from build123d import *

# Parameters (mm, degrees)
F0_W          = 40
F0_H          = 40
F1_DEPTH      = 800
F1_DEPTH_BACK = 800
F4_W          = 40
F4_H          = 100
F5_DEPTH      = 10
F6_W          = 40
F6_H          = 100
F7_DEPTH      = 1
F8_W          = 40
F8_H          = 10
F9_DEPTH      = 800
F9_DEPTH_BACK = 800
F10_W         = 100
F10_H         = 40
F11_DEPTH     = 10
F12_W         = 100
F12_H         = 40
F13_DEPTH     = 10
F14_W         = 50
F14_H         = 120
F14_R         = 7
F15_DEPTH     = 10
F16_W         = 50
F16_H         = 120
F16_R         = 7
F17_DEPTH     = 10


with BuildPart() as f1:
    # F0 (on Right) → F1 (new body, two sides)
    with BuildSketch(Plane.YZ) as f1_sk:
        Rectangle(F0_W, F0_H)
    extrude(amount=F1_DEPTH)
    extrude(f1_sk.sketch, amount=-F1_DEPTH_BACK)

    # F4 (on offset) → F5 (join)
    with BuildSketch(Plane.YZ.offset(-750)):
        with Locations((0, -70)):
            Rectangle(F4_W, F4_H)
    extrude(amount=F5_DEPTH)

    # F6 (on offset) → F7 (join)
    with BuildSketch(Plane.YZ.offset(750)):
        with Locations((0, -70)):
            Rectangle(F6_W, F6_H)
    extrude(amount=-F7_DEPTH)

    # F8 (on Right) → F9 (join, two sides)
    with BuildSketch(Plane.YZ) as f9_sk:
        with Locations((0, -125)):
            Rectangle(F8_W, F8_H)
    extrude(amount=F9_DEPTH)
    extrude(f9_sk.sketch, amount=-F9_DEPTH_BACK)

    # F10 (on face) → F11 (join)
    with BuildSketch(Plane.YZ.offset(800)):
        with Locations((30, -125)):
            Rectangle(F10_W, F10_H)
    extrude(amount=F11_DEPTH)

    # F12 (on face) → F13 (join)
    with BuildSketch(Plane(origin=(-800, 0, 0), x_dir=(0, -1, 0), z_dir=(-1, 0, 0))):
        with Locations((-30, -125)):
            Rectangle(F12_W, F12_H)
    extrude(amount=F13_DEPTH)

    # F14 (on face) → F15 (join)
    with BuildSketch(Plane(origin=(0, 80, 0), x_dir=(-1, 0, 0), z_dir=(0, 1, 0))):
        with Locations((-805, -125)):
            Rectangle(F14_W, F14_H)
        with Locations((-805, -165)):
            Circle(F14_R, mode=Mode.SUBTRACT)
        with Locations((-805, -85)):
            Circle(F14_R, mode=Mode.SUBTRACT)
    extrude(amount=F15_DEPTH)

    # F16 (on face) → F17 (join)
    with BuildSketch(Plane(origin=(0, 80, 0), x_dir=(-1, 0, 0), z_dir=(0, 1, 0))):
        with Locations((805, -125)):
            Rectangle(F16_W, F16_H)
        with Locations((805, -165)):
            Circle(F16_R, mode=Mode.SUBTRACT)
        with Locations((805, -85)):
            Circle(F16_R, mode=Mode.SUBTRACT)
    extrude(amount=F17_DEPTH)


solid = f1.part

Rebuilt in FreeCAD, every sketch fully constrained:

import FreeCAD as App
import Part
import Sketcher

V = App.Vector
Q = App.Units.Quantity

doc = App.newDocument("Part")
body = doc.addObject("PartDesign::Body", "Body")

sketch1 = body.newObject("Sketcher::SketchObject", "Sketch")
sketch1.AttachmentSupport = (doc.getObject("YZ_Plane"), [""])
sketch1.MapMode = "FlatFace"
sketch1.addGeometry([
    Part.LineSegment(V(-20, 20, 0), V(-20, -20, 0)),
    Part.LineSegment(V(-20, -20, 0), V(20, -20, 0)),
    Part.LineSegment(V(20, -20, 0), V(20, 20, 0)),
    Part.LineSegment(V(20, 20, 0), V(-20, 20, 0)),
], False)
sketch1.addConstraint([
    Sketcher.Constraint("Coincident", 0, 2, 1, 1),
    Sketcher.Constraint("Coincident", 1, 2, 2, 1),
    Sketcher.Constraint("Coincident", 2, 2, 3, 1),
    Sketcher.Constraint("Coincident", 3, 2, 0, 1),
    Sketcher.Constraint("Vertical", 0),
    Sketcher.Constraint("Horizontal", 1),
    Sketcher.Constraint("Vertical", 2),
    Sketcher.Constraint("Horizontal", 3),
    Sketcher.Constraint("Symmetric", 0, 2, 2, 2, -1, 1),
    Sketcher.Constraint("Equal", 3, 0),
    Sketcher.Constraint("DistanceX", 1, 1, 1, 2, Q("40 mm")),
])
pad1 = body.newObject("PartDesign::Pad", "Pad")
pad1.Profile = sketch1
pad1.Type = "TwoLengths"
pad1.Length = 800
pad1.Length2 = 800

sketch2 = body.newObject("Sketcher::SketchObject", "Sketch001")
sketch2.AttachmentSupport = (doc.getObject("YZ_Plane"), [""])
sketch2.MapMode = "FlatFace"
sketch2.AttachmentOffset = App.Placement(V(0, 0, -750), App.Rotation())
sketch2.addGeometry([
    Part.LineSegment(V(-20, -20, 0), V(-20, -120, 0)),
    Part.LineSegment(V(-20, -120, 0), V(20, -120, 0)),
    Part.LineSegment(V(20, -120, 0), V(20, -20, 0)),
    Part.LineSegment(V(20, -20, 0), V(-20, -20, 0)),
], False)
sketch2.addConstraint([
    Sketcher.Constraint("Coincident", 0, 2, 1, 1),
    Sketcher.Constraint("Coincident", 1, 2, 2, 1),
    Sketcher.Constraint("Coincident", 2, 2, 3, 1),
    Sketcher.Constraint("Coincident", 3, 2, 0, 1),
    Sketcher.Constraint("Vertical", 0),
    Sketcher.Constraint("Horizontal", 1),
    Sketcher.Constraint("Vertical", 2),
    Sketcher.Constraint("Horizontal", 3),
    Sketcher.Constraint("DistanceX", 1, 1, 1, 2, Q("40 mm")),
    Sketcher.Constraint("DistanceY", 0, 2, 0, 1, Q("100 mm")),
    Sketcher.Constraint("DistanceX", 0, 2, -1, 1, Q("20 mm")),
    Sketcher.Constraint("DistanceY", 0, 2, -1, 1, Q("120 mm")),
])
pad2 = body.newObject("PartDesign::Pad", "Pad001")
pad2.Profile = sketch2
pad2.Length = 10

sketch3 = body.newObject("Sketcher::SketchObject", "Sketch002")
sketch3.AttachmentSupport = (doc.getObject("YZ_Plane"), [""])
sketch3.MapMode = "FlatFace"
sketch3.AttachmentOffset = App.Placement(V(0, 0, 750), App.Rotation())
sketch3.addGeometry([
    Part.LineSegment(V(-20, -20, 0), V(-20, -120, 0)),
    Part.LineSegment(V(-20, -120, 0), V(20, -120, 0)),
    Part.LineSegment(V(20, -120, 0), V(20, -20, 0)),
    Part.LineSegment(V(20, -20, 0), V(-20, -20, 0)),
], False)
sketch3.addConstraint([
    Sketcher.Constraint("Coincident", 0, 2, 1, 1),
    Sketcher.Constraint("Coincident", 1, 2, 2, 1),
    Sketcher.Constraint("Coincident", 2, 2, 3, 1),
    Sketcher.Constraint("Coincident", 3, 2, 0, 1),
    Sketcher.Constraint("Vertical", 0),
    Sketcher.Constraint("Horizontal", 1),
    Sketcher.Constraint("Vertical", 2),
    Sketcher.Constraint("Horizontal", 3),
    Sketcher.Constraint("DistanceX", 1, 1, 1, 2, Q("40 mm")),
    Sketcher.Constraint("DistanceY", 0, 2, 0, 1, Q("100 mm")),
    Sketcher.Constraint("DistanceX", 0, 2, -1, 1, Q("20 mm")),
    Sketcher.Constraint("DistanceY", 0, 2, -1, 1, Q("120 mm")),
])
pad3 = body.newObject("PartDesign::Pad", "Pad002")
pad3.Profile = sketch3
pad3.Length = 1
pad3.Reversed = True

sketch4 = body.newObject("Sketcher::SketchObject", "Sketch003")
sketch4.AttachmentSupport = (doc.getObject("YZ_Plane"), [""])
sketch4.MapMode = "FlatFace"
sketch4.addGeometry([
    Part.LineSegment(V(-20, -120, 0), V(-20, -130, 0)),
    Part.LineSegment(V(-20, -130, 0), V(20, -130, 0)),
    Part.LineSegment(V(20, -130, 0), V(20, -120, 0)),
    Part.LineSegment(V(20, -120, 0), V(-20, -120, 0)),
], False)
sketch4.addConstraint([
    Sketcher.Constraint("Coincident", 0, 2, 1, 1),
    Sketcher.Constraint("Coincident", 1, 2, 2, 1),
    Sketcher.Constraint("Coincident", 2, 2, 3, 1),
    Sketcher.Constraint("Coincident", 3, 2, 0, 1),
    Sketcher.Constraint("Vertical", 0),
    Sketcher.Constraint("Horizontal", 1),
    Sketcher.Constraint("Vertical", 2),
    Sketcher.Constraint("Horizontal", 3),
    Sketcher.Constraint("DistanceX", 1, 1, 1, 2, Q("40 mm")),
    Sketcher.Constraint("DistanceY", 0, 2, 0, 1, Q("10 mm")),
    Sketcher.Constraint("DistanceX", 0, 2, -1, 1, Q("20 mm")),
    Sketcher.Constraint("DistanceY", 0, 2, -1, 1, Q("130 mm")),
])
pad4 = body.newObject("PartDesign::Pad", "Pad003")
pad4.Profile = sketch4
pad4.Type = "TwoLengths"
pad4.Length = 800
pad4.Length2 = 800

sketch5 = body.newObject("Sketcher::SketchObject", "Sketch004")
sketch5.AttachmentSupport = (doc.getObject("YZ_Plane"), [""])
sketch5.MapMode = "FlatFace"
sketch5.AttachmentOffset = App.Placement(V(0, 0, 800), App.Rotation())
sketch5.addGeometry([
    Part.LineSegment(V(-20, -105, 0), V(-20, -145, 0)),
    Part.LineSegment(V(-20, -145, 0), V(80, -145, 0)),
    Part.LineSegment(V(80, -145, 0), V(80, -105, 0)),
    Part.LineSegment(V(80, -105, 0), V(-20, -105, 0)),
], False)
sketch5.addConstraint([
    Sketcher.Constraint("Coincident", 0, 2, 1, 1),
    Sketcher.Constraint("Coincident", 1, 2, 2, 1),
    Sketcher.Constraint("Coincident", 2, 2, 3, 1),
    Sketcher.Constraint("Coincident", 3, 2, 0, 1),
    Sketcher.Constraint("Vertical", 0),
    Sketcher.Constraint("Horizontal", 1),
    Sketcher.Constraint("Vertical", 2),
    Sketcher.Constraint("Horizontal", 3),
    Sketcher.Constraint("DistanceX", 1, 1, 1, 2, Q("100 mm")),
    Sketcher.Constraint("DistanceY", 0, 2, 0, 1, Q("40 mm")),
    Sketcher.Constraint("DistanceX", 0, 2, -1, 1, Q("20 mm")),
    Sketcher.Constraint("DistanceY", 0, 2, -1, 1, Q("145 mm")),
])
pad5 = body.newObject("PartDesign::Pad", "Pad004")
pad5.Profile = sketch5
pad5.Length = 10

sketch6 = body.newObject("Sketcher::SketchObject", "Sketch005")
sketch6.AttachmentSupport = (doc.getObject("YZ_Plane"), [""])
sketch6.MapMode = "FlatFace"
sketch6.AttachmentOffset = App.Placement(V(0, 0, -800), App.Rotation())
sketch6.addGeometry([
    Part.LineSegment(V(80, -105, 0), V(80, -145, 0)),
    Part.LineSegment(V(80, -145, 0), V(-20, -145, 0)),
    Part.LineSegment(V(-20, -145, 0), V(-20, -105, 0)),
    Part.LineSegment(V(-20, -105, 0), V(80, -105, 0)),
], False)
sketch6.addConstraint([
    Sketcher.Constraint("Coincident", 0, 2, 1, 1),
    Sketcher.Constraint("Coincident", 1, 2, 2, 1),
    Sketcher.Constraint("Coincident", 2, 2, 3, 1),
    Sketcher.Constraint("Coincident", 3, 2, 0, 1),
    Sketcher.Constraint("Vertical", 0),
    Sketcher.Constraint("Horizontal", 1),
    Sketcher.Constraint("Vertical", 2),
    Sketcher.Constraint("Horizontal", 3),
    Sketcher.Constraint("DistanceX", 1, 2, 1, 1, Q("100 mm")),
    Sketcher.Constraint("DistanceY", 0, 2, 0, 1, Q("40 mm")),
    Sketcher.Constraint("DistanceX", -1, 1, 0, 2, Q("80 mm")),
    Sketcher.Constraint("DistanceY", 0, 2, -1, 1, Q("145 mm")),
])
pad6 = body.newObject("PartDesign::Pad", "Pad005")
pad6.Profile = sketch6
pad6.Length = 10
pad6.Reversed = True

sketch7 = body.newObject("Sketcher::SketchObject", "Sketch006")
sketch7.AttachmentSupport = (doc.getObject("XZ_Plane"), [""])
sketch7.MapMode = "FlatFace"
sketch7.AttachmentOffset = App.Placement(V(0, 0, -80), App.Rotation())
sketch7.addGeometry([
    Part.LineSegment(V(830, -65, 0), V(830, -185, 0)),
    Part.LineSegment(V(830, -185, 0), V(780, -185, 0)),
    Part.LineSegment(V(780, -185, 0), V(780, -65, 0)),
    Part.LineSegment(V(780, -65, 0), V(830, -65, 0)),
    Part.Circle(V(805, -165, 0), V(0, 0, 1), 7),
    Part.Circle(V(805, -85, 0), V(0, 0, 1), 7),
], False)
sketch7.addConstraint([
    Sketcher.Constraint("Coincident", 0, 2, 1, 1),
    Sketcher.Constraint("Coincident", 1, 2, 2, 1),
    Sketcher.Constraint("Coincident", 2, 2, 3, 1),
    Sketcher.Constraint("Coincident", 3, 2, 0, 1),
    Sketcher.Constraint("Vertical", 0),
    Sketcher.Constraint("Horizontal", 1),
    Sketcher.Constraint("Vertical", 2),
    Sketcher.Constraint("Horizontal", 3),
    Sketcher.Constraint("Equal", 4, 5),
    Sketcher.Constraint("Vertical", 4, 3, 5, 3),
    Sketcher.Constraint("Diameter", 4, Q("14 mm")),
    Sketcher.Constraint("DistanceX", 1, 2, 1, 1, Q("50 mm")),
    Sketcher.Constraint("DistanceY", 0, 2, 0, 1, Q("120 mm")),
    Sketcher.Constraint("DistanceX", -1, 1, 4, 3, Q("805 mm")),
    Sketcher.Constraint("DistanceY", 4, 3, -1, 1, Q("165 mm")),
    Sketcher.Constraint("DistanceY", 5, 3, -1, 1, Q("85 mm")),
    Sketcher.Constraint("DistanceX", -1, 1, 0, 2, Q("830 mm")),
    Sketcher.Constraint("DistanceY", 0, 2, -1, 1, Q("185 mm")),
])
pad7 = body.newObject("PartDesign::Pad", "Pad006")
pad7.Profile = sketch7
pad7.Length = 10
pad7.Reversed = True

sketch8 = body.newObject("Sketcher::SketchObject", "Sketch007")
sketch8.AttachmentSupport = (doc.getObject("XZ_Plane"), [""])
sketch8.MapMode = "FlatFace"
sketch8.AttachmentOffset = App.Placement(V(0, 0, -80), App.Rotation())
sketch8.addGeometry([
    Part.LineSegment(V(-780, -65, 0), V(-780, -185, 0)),
    Part.LineSegment(V(-780, -185, 0), V(-830, -185, 0)),
    Part.LineSegment(V(-830, -185, 0), V(-830, -65, 0)),
    Part.LineSegment(V(-830, -65, 0), V(-780, -65, 0)),
    Part.Circle(V(-805, -165, 0), V(0, 0, 1), 7),
    Part.Circle(V(-805, -85, 0), V(0, 0, 1), 7),
], False)
sketch8.addConstraint([
    Sketcher.Constraint("Coincident", 0, 2, 1, 1),
    Sketcher.Constraint("Coincident", 1, 2, 2, 1),
    Sketcher.Constraint("Coincident", 2, 2, 3, 1),
    Sketcher.Constraint("Coincident", 3, 2, 0, 1),
    Sketcher.Constraint("Vertical", 0),
    Sketcher.Constraint("Horizontal", 1),
    Sketcher.Constraint("Vertical", 2),
    Sketcher.Constraint("Horizontal", 3),
    Sketcher.Constraint("Equal", 4, 5),
    Sketcher.Constraint("Vertical", 4, 3, 5, 3),
    Sketcher.Constraint("Diameter", 4, Q("14 mm")),
    Sketcher.Constraint("DistanceX", 1, 2, 1, 1, Q("50 mm")),
    Sketcher.Constraint("DistanceY", 0, 2, 0, 1, Q("120 mm")),
    Sketcher.Constraint("DistanceX", 4, 3, -1, 1, Q("805 mm")),
    Sketcher.Constraint("DistanceY", 4, 3, -1, 1, Q("165 mm")),
    Sketcher.Constraint("DistanceY", 5, 3, -1, 1, Q("85 mm")),
    Sketcher.Constraint("DistanceX", 0, 2, -1, 1, Q("780 mm")),
    Sketcher.Constraint("DistanceY", 0, 2, -1, 1, Q("185 mm")),
])
pad8 = body.newObject("PartDesign::Pad", "Pad007")
pad8.Profile = sketch8
pad8.Length = 10
pad8.Reversed = True

doc.recompute()
